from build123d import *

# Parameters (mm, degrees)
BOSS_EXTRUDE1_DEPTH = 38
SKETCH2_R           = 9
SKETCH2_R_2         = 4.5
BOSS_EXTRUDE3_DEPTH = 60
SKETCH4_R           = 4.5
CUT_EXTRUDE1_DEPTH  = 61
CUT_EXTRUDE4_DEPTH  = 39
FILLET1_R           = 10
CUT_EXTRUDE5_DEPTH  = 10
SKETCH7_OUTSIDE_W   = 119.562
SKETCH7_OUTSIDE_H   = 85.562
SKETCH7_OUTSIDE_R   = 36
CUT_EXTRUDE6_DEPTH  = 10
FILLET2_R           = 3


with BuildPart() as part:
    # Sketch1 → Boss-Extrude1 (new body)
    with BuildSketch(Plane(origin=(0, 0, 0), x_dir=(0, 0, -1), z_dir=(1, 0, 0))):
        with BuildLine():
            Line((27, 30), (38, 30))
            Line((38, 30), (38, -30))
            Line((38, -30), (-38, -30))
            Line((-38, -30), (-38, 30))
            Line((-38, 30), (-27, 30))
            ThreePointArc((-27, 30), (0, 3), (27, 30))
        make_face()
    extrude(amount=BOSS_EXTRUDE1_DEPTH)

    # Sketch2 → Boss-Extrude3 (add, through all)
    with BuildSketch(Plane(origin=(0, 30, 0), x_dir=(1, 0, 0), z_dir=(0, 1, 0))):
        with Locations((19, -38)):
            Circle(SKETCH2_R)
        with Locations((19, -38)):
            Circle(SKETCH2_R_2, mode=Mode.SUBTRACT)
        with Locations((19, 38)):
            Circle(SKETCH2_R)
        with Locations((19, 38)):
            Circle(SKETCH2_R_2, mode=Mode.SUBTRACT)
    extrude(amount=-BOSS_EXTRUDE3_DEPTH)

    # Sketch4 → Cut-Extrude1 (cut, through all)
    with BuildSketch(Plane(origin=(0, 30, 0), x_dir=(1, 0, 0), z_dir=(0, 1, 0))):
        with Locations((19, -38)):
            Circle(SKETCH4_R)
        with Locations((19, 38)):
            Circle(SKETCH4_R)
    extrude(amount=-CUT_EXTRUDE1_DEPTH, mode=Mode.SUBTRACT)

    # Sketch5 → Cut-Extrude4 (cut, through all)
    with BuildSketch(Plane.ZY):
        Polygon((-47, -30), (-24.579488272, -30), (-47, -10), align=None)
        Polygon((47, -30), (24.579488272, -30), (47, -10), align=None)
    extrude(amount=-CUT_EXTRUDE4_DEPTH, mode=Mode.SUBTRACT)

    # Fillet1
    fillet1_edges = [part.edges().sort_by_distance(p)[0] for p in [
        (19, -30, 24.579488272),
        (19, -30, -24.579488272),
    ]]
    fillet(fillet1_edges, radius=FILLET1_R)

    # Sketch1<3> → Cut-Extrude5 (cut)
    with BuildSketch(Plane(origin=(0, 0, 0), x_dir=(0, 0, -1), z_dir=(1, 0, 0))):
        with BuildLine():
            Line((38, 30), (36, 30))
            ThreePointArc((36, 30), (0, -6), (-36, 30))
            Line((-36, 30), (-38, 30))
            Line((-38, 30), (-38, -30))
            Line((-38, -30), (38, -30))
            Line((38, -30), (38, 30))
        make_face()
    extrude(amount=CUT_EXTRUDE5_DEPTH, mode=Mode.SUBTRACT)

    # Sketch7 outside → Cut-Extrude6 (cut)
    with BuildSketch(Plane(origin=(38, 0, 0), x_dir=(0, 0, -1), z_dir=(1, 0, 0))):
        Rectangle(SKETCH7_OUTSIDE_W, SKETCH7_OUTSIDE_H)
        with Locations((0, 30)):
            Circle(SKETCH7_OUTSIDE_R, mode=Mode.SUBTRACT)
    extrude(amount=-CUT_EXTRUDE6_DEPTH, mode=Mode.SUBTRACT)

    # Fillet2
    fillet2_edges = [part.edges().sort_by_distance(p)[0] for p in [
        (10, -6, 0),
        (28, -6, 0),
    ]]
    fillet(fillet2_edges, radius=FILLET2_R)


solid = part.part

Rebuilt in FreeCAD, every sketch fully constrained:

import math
import FreeCAD as App
import Part
import Sketcher
from FreeCAD import Vector


def edges_at(feature, points):
    """Names of the edges that pass closest to the given points."""
    edges = feature.Shape.Edges
    near = lambda p: min(range(len(edges)), key=lambda i: edges[i].distToShape(Part.Vertex(*p))[0])
    return sorted({f"Edge{near(p) + 1}" for p in points})


def add_polygon(sketch, points):
    """Adds a closed chain of lines whose ends are joined by coincident constraints."""
    first, n = sketch.GeometryCount, len(points)
    for a, b in zip(points, points[1:] + points[:1]):
        sketch.addGeometry(Part.LineSegment(App.Vector(*a, 0), App.Vector(*b, 0)), False)
    for i in range(n):
        sketch.addConstraint(Sketcher.Constraint("Coincident", first + i, 2, first + (i + 1) % n, 1))

doc = App.newDocument("Part")
body = doc.addObject("PartDesign::Body", "Body")

sketch1 = body.newObject("Sketcher::SketchObject", "Sketch")
sketch1.AttachmentSupport = (doc.getObject("YZ_Plane"), [""])
sketch1.MapMode = "FlatFace"
sketch1.addGeometry([
    Part.LineSegment(Vector(30, -38, 0), Vector(30, -27, 0)),
    Part.ArcOfCircle(Part.Circle(Vector(30, 0, 0), Vector(0, 0, 1), 27), math.radians(90), math.radians(270)),
    Part.LineSegment(Vector(30, 27, 0), Vector(30, 38, 0)),
    Part.LineSegment(Vector(30, 38, 0), Vector(-30, 38, 0)),
    Part.LineSegment(Vector(-30, 38, 0), Vector(-30, -38, 0)),
    Part.LineSegment(Vector(-30, -38, 0), Vector(30, -38, 0)),
], False)
sketch1.addConstraint([
    Sketcher.Constraint("Coincident", 0, 2, 1, 2),
    Sketcher.Constraint("Coincident", 1, 1, 2, 1),
    Sketcher.Constraint("Coincident", 2, 2, 3, 1),
    Sketcher.Constraint("Coincident", 3, 2, 4, 1),
    Sketcher.Constraint("Coincident", 4, 2, 5, 1),
    Sketcher.Constraint("Coincident", 5, 2, 0, 1),
    Sketcher.Constraint("Vertical", 0),
    Sketcher.Constraint("Vertical", 2),
    Sketcher.Constraint("Horizontal", 3),
    Sketcher.Constraint("Vertical", 4),
    Sketcher.Constraint("Horizontal", 5),
    Sketcher.Constraint("Symmetric", 2, 2, 4, 2, -1, 1),
    Sketcher.Constraint("Symmetric", 0, 2, 1, 1, -1),
    Sketcher.Constraint("Vertical", 1, 3, 0, 2),
    Sketcher.Constraint("Radius", 1, 27.0),
    Sketcher.Constraint("DistanceX", 3, 2, 3, 1, 60.0),
    Sketcher.Constraint("DistanceY", 0, 1, 0, 2, 11.0),
])
pad1 = body.newObject("PartDesign::Pad", "Pad")
pad1.Profile = sketch1
pad1.Length = 38

sketch2 = body.newObject("Sketcher::SketchObject", "Sketch001")
sketch2.AttachmentSupport = (doc.getObject("XZ_Plane"), [""])
sketch2.MapMode = "FlatFace"
sketch2.AttachmentOffset = App.Placement(Vector(0, 0, -30), App.Rotation())
sketch2.addGeometry([
    Part.Circle(Vector(19, 38, 0), Vector(0, 0, 1), 9),
    Part.Circle(Vector(19, 38, 0), Vector(0, 0, 1), 4.5),
    Part.Circle(Vector(19, -38, 0), Vector(0, 0, 1), 9),
    Part.Circle(Vector(19, -38, 0), Vector(0, 0, 1), 4.5),
], False)
sketch2.addConstraint([
    Sketcher.Constraint("Coincident", 1, 3, 0, 3),
    Sketcher.Constraint("Coincident", 3, 3, 2, 3),
    Sketcher.Constraint("Equal", 0, 2),
    Sketcher.Constraint("Equal", 1, 3),
    Sketcher.Constraint("Symmetric", 0, 3, 2, 3, -1),
    Sketcher.Constraint("Diameter", 0, 18.0),
    Sketcher.Constraint("Diameter", 1, 9.0),
    Sketcher.Constraint("DistanceX", -1, 1, 0, 3, 19.0),
    Sketcher.Constraint("DistanceY", -1, 1, 0, 3, 38.0),
])
pad2 = body.newObject("PartDesign::Pad", "Pad001")
pad2.Profile = sketch2
pad2.Type = "UpToLast"

sketch3 = body.newObject("Sketcher::SketchObject", "Sketch002")
sketch3.AttachmentSupport = (doc.getObject("XZ_Plane"), [""])
sketch3.MapMode = "FlatFace"
sketch3.AttachmentOffset = App.Placement(Vector(0, 0, -30), App.Rotation())
sketch3.addGeometry([
    Part.Circle(Vector(19, 38, 0), Vector(0, 0, 1), 4.5),
    Part.Circle(Vector(19, -38, 0), Vector(0, 0, 1), 4.5),
], False)
sketch3.addConstraint([
    Sketcher.Constraint("Equal", 0, 1),
    Sketcher.Constraint("Symmetric", 0, 3, 1, 3, -1),
    Sketcher.Constraint("Diameter", 0, 9.0),
    Sketcher.Constraint("DistanceX", -1, 1, 0, 3, 19.0),
    Sketcher.Constraint("DistanceY", -1, 1, 0, 3, 38.0),
])
pocket1 = body.newObject("PartDesign::Pocket", "Pocket")
pocket1.Profile = sketch3
pocket1.Type = "ThroughAll"
pocket1.Reversed = True

sketch4 = body.newObject("Sketcher::SketchObject", "Sketch003")
sketch4.AttachmentSupport = (doc.getObject("YZ_Plane"), [""])
sketch4.MapMode = "FlatFace"
add_polygon(sketch4, [(-30, -47), (-30, -24.579488), (-10, -47)])
add_polygon(sketch4, [(-30, 24.579488), (-30, 47), (-10, 47)])
sketch4.addConstraint([
    Sketcher.Constraint("Vertical", 0),
    Sketcher.Constraint("Horizontal", 2),
    Sketcher.Constraint("Vertical", 3),
    Sketcher.Constraint("Horizontal", 4),
    Sketcher.Constraint("Symmetric", 2, 2, 3, 2, -1),
    Sketcher.Constraint("Vertical", 1, 2, 4, 2),
    Sketcher.Constraint("Equal", 0, 3),
    Sketcher.Constraint("DistanceX", 2, 2, 2, 1, 20.0),
    Sketcher.Constraint("DistanceX", 0, 2, -1, 1, 30.0),
    Sketcher.Constraint("DistanceY", 1, 2, -1, 1, 47.0),
    Sketcher.Constraint("DistanceY", 0, 1, 0, 2, 22.420512),
])
pocket2 = body.newObject("PartDesign::Pocket", "Pocket001")
pocket2.Profile = sketch4
pocket2.Type = "ThroughAll"
pocket2.Reversed = True
doc.recompute()

fillet = body.newObject("PartDesign::Fillet", "Fillet")
fillet.Base = (pocket2, edges_at(pocket2, [(19, -30, 24.579), (19, -30, -24.579)]))
fillet.Radius = 10

sketch5 = body.newObject("Sketcher::SketchObject", "Sketch004")
sketch5.AttachmentSupport = (doc.getObject("YZ_Plane"), [""])
sketch5.MapMode = "FlatFace"
sketch5.addGeometry([
    Part.LineSegment(Vector(30, -38, 0), Vector(30, -36, 0)),
    Part.ArcOfCircle(Part.Circle(Vector(30, 0, 0), Vector(0, 0, 1), 36), math.radians(90), math.radians(270)),
    Part.LineSegment(Vector(30, 36, 0), Vector(30, 38, 0)),
    Part.LineSegment(Vector(30, 38, 0), Vector(-30, 38, 0)),
    Part.LineSegment(Vector(-30, 38, 0), Vector(-30, -38, 0)),
    Part.LineSegment(Vector(-30, -38, 0), Vector(30, -38, 0)),
], False)
sketch5.addConstraint([
    Sketcher.Constraint("Coincident", 0, 2, 1, 2),
    Sketcher.Constraint("Coincident", 1, 1, 2, 1),
    Sketcher.Constraint("Coincident", 2, 2, 3, 1),
    Sketcher.Constraint("Coincident", 3, 2, 4, 1),
    Sketcher.Constraint("Coincident", 4, 2, 5, 1),
    Sketcher.Constraint("Coincident", 5, 2, 0, 1),
    Sketcher.Constraint("Vertical", 0),
    Sketcher.Constraint("Vertical", 2),
    Sketcher.Constraint("Horizontal", 3),
    Sketcher.Constraint("Vertical", 4),
    Sketcher.Constraint("Horizontal", 5),
    Sketcher.Constraint("Symmetric", 2, 2, 4, 2, -1, 1),
    Sketcher.Constraint("Symmetric", 0, 2, 1, 1, -1),
    Sketcher.Constraint("Vertical", 1, 3, 0, 2),
    Sketcher.Constraint("Radius", 1, 36.0),
    Sketcher.Constraint("DistanceX", 3, 2, 3, 1, 60.0),
    Sketcher.Constraint("DistanceY", 0, 1, 0, 2, 2.0),
])
pocket3 = body.newObject("PartDesign::Pocket", "Pocket002")
pocket3.Profile = sketch5
pocket3.Length = 10
pocket3.Reversed = True

sketch6 = body.newObject("Sketcher::SketchObject", "Sketch005")
sketch6.AttachmentSupport = (doc.getObject("YZ_Plane"), [""])
sketch6.MapMode = "FlatFace"
sketch6.AttachmentOffset = App.Placement(Vector(0, 0, 38), App.Rotation())
sketch6.addGeometry([
    Part.LineSegment(Vector(42.781, 59.781, 0), Vector(-42.781, 59.781, 0)),
    Part.LineSegment(Vector(-42.781, 59.781, 0), Vector(-42.781, -59.781, 0)),
    Part.LineSegment(Vector(-42.781, -59.781, 0), Vector(42.781, -59.781, 0)),
    Part.LineSegment(Vector(42.781, -59.781, 0), Vector(42.781, -33.654807, 0)),
    Part.ArcOfCircle(Part.Circle(Vector(30, 0, 0), Vector(0, 0, 1), 36), math.radians(69.204853), math.radians(290.795147)),
    Part.LineSegment(Vector(42.781, 33.654807, 0), Vector(42.781, 59.781, 0)),
], False)
sketch6.addConstraint([
    Sketcher.Constraint("Coincident", 0, 2, 1, 1),
    Sketcher.Constraint("Coincident", 1, 2, 2, 1),
    Sketcher.Constraint("Coincident", 2, 2, 3, 1),
    Sketcher.Constraint("Coincident", 3, 2, 4, 2),
    Sketcher.Constraint("Coincident", 4, 1, 5, 1),
    Sketcher.Constraint("Coincident", 5, 2, 0, 1),
    Sketcher.Constraint("Horizontal", 0),
    Sketcher.Constraint("Vertical", 1),
    Sketcher.Constraint("Horizontal", 2),
    Sketcher.Constraint("Vertical", 3),
    Sketcher.Constraint("Vertical", 5),
    Sketcher.Constraint("Symmetric", 0, 2, 2, 2, -1, 1),
    Sketcher.Constraint("Symmetric", 3, 2, 4, 1, -1),
    Sketcher.Constraint("Radius", 4, 36.0),
    Sketcher.Constraint("DistanceX", -1, 1, 4, 3, 30.0),
    Sketcher.Constraint("DistanceX", 0, 2, 0, 1, 85.562),
    Sketcher.Constraint("DistanceY", 1, 2, 1, 1, 119.562),
])
pocket4 = body.newObject("PartDesign::Pocket", "Pocket003")
pocket4.Profile = sketch6
pocket4.Length = 10
doc.recompute()

fillet2 = body.newObject("PartDesign::Fillet", "Fillet001")
fillet2.Base = (pocket4, edges_at(pocket4, [(10, -6, 0), (28, -6, 0)]))
fillet2.Radius = 3

doc.recompute()
